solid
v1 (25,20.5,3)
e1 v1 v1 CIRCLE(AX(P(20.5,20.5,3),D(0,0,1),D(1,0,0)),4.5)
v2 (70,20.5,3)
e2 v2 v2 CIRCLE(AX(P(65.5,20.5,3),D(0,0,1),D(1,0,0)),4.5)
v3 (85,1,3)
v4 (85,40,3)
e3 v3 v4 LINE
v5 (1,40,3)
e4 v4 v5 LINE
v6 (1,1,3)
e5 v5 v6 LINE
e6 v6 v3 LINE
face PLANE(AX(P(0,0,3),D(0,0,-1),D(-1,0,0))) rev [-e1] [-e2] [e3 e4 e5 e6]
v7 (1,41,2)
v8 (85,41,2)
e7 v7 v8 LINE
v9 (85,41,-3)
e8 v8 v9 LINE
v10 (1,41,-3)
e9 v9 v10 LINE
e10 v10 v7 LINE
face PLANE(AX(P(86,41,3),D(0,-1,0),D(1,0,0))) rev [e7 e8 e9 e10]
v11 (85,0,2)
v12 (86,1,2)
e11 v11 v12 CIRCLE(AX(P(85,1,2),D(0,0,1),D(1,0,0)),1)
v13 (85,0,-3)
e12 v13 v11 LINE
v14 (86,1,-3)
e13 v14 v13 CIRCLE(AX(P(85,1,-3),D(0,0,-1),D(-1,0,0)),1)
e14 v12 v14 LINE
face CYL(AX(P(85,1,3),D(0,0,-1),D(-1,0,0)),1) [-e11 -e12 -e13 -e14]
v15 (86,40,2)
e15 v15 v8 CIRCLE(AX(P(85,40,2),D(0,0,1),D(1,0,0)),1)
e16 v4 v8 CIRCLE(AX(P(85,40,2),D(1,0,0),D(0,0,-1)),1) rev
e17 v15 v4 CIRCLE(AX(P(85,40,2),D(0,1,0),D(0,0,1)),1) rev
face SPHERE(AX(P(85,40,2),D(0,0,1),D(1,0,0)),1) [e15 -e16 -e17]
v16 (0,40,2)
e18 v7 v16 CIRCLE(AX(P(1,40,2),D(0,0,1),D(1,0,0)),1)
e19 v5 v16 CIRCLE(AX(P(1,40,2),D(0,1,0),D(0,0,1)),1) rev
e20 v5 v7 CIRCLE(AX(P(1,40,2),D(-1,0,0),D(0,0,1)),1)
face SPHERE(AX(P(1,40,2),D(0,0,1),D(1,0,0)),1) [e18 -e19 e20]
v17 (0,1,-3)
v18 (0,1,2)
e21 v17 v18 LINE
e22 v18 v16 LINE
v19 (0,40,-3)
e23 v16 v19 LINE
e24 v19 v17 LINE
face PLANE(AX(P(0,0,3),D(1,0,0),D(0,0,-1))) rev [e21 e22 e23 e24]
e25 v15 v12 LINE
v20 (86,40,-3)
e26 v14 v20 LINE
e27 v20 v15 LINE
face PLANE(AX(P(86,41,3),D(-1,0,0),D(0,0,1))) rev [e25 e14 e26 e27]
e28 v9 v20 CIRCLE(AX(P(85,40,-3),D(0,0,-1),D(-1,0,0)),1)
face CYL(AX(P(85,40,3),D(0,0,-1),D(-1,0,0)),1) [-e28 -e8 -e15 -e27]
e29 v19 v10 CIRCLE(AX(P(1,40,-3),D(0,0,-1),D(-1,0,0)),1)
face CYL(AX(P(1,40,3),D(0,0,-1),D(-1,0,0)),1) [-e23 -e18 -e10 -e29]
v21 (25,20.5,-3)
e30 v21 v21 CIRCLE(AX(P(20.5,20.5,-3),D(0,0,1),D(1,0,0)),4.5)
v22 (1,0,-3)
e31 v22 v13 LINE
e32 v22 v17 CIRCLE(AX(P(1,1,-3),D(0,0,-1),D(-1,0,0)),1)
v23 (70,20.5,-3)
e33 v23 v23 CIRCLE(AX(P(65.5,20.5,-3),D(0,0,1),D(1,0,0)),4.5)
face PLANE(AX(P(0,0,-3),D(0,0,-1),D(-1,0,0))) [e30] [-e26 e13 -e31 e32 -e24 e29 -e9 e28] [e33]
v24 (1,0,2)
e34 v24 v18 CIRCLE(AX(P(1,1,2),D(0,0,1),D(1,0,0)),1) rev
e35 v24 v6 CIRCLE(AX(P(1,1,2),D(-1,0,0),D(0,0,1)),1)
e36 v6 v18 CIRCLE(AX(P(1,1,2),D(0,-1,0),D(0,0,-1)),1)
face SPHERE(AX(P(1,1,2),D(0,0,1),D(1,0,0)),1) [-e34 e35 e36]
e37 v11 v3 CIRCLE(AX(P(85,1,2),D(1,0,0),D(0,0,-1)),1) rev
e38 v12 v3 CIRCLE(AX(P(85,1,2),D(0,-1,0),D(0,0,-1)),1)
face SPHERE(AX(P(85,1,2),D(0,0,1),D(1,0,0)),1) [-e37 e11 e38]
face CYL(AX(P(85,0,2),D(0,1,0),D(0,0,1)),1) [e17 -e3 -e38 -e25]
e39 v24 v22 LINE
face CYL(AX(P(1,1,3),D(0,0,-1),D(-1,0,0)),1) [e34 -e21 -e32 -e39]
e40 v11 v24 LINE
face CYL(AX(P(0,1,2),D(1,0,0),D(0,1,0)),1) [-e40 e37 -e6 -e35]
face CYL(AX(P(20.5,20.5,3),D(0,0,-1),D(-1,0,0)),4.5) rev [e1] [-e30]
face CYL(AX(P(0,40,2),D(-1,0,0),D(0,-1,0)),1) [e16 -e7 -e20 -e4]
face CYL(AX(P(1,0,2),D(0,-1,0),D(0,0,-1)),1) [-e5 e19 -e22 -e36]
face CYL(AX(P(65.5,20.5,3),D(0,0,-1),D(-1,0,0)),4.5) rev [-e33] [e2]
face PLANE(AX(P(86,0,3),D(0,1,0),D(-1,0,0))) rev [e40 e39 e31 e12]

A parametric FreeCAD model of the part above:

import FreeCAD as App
import Part
import Sketcher


def edges_at(feature, points):
    """Names of the edges that pass closest to the given points."""
    edges = feature.Shape.Edges
    near = lambda p: min(range(len(edges)), key=lambda i: edges[i].distToShape(Part.Vertex(*p))[0])
    return sorted({f"Edge{near(p) + 1}" for p in points})


def add_polygon(sketch, points):
    """Adds a closed chain of lines whose ends are joined by coincident constraints."""
    first, n = sketch.GeometryCount, len(points)
    for a, b in zip(points, points[1:] + points[:1]):
        sketch.addGeometry(Part.LineSegment(App.Vector(*a, 0), App.Vector(*b, 0)), False)
    for i in range(n):
        sketch.addConstraint(Sketcher.Constraint("Coincident", first + i, 2, first + (i + 1) % n, 1))

doc = App.newDocument("Part")
body = doc.addObject("PartDesign::Body", "Body")

sketch1 = body.newObject("Sketcher::SketchObject", "Sketch")
sketch1.AttachmentSupport = (doc.getObject("XY_Plane"), [""])
sketch1.MapMode = "FlatFace"
add_polygon(sketch1, [(0, 41), (0, 0), (86, 0), (86, 41)])
sketch1.addGeometry(Part.Circle(App.Vector(20.5, 20.5, 0), App.Vector(0, 0, 1), 4.5), False)
sketch1.addGeometry(Part.Circle(App.Vector(65.5, 20.5, 0), App.Vector(0, 0, 1), 4.5), False)
sketch1.addConstraint([
    Sketcher.Constraint("Vertical", 0),
    Sketcher.Constraint("Horizontal", 1),
    Sketcher.Constraint("Vertical", 2),
    Sketcher.Constraint("Horizontal", 3),
    Sketcher.Constraint("Coincident", 0, 2, -1, 1),
    Sketcher.Constraint("Equal", 4, 5),
    Sketcher.Constraint("Horizontal", 4, 3, 5, 3),
    Sketcher.Constraint("Diameter", 4, 9.0),
    Sketcher.Constraint("DistanceX", 1, 1, 1, 2, 86.0),
    Sketcher.Constraint("DistanceY", 0, 2, 0, 1, 41.0),
    Sketcher.Constraint("DistanceX", 4, 3, 5, 3, 45.0),
    Sketcher.Constraint("DistanceX", -1, 1, 4, 3, 20.5),
    Sketcher.Constraint("DistanceY", -1, 1, 4, 3, 20.5),
])
pad1 = body.newObject("PartDesign::Pad", "Pad")
pad1.Profile = sketch1
pad1.Length = 6
pad1.Midplane = True
doc.recompute()

fillet = body.newObject("PartDesign::Fillet", "Fillet")
fillet.Base = (pad1, edges_at(pad1, [
    (43, 41, 3),
    (0, 20.5, 3),
    (43, 0, 3),
    (86, 20.5, 3),
    (0, 0, 0),
    (0, 41, 0),
    (86, 41, 0),
    (86, 0, 0),
]))
fillet.Radius = 1

doc.recompute()
